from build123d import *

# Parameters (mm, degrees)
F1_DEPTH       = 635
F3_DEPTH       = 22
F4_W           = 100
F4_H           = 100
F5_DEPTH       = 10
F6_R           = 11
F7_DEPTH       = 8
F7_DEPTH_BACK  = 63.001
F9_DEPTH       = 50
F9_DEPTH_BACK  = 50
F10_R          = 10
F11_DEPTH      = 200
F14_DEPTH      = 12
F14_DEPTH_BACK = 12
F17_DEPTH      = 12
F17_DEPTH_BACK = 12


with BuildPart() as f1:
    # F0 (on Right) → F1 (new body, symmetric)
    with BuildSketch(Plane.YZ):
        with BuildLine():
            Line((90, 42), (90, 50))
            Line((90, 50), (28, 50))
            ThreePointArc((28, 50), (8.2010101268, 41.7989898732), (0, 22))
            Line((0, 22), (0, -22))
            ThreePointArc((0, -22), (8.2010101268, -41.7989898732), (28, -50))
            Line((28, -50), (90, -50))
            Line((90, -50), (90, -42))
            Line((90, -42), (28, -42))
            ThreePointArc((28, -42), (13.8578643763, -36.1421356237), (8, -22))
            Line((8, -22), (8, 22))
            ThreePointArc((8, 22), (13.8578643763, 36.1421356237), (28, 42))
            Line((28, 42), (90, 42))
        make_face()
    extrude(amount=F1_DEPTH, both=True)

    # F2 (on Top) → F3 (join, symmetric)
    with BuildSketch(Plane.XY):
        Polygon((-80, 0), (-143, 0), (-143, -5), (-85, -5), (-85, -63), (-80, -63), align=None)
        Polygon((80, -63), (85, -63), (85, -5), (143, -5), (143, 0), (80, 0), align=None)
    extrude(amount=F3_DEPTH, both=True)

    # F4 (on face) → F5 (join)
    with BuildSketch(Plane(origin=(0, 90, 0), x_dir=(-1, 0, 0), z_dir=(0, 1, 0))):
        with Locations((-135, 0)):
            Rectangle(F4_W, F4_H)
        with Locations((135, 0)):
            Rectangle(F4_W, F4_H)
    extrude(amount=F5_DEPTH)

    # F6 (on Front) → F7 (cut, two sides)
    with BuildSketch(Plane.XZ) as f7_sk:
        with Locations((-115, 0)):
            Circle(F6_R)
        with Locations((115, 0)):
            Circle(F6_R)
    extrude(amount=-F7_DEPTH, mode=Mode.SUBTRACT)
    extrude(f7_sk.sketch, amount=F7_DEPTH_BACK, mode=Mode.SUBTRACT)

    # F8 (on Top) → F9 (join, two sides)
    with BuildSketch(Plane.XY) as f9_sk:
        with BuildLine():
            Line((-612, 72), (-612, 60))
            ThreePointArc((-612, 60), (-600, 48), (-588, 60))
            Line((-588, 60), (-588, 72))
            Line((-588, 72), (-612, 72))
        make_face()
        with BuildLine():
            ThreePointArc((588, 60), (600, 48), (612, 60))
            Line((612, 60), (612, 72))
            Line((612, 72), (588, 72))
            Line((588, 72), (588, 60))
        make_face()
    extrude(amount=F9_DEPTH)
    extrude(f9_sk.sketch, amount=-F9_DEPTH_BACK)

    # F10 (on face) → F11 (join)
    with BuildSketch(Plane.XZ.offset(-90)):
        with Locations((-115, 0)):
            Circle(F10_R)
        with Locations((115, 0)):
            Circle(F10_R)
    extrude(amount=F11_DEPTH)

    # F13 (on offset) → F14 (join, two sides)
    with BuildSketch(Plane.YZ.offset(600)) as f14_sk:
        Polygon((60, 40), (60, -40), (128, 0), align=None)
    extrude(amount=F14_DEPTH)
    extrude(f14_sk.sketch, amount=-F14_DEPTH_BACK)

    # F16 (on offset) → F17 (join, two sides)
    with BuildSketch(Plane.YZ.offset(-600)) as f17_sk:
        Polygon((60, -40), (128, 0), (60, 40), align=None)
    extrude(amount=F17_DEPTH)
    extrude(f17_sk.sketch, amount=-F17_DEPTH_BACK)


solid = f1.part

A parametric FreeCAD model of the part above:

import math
import FreeCAD as App
import Part
import Sketcher
Q = App.Units.Quantity

doc = App.newDocument("Part")
params = doc.addObject("Spreadsheet::Sheet", "Params")
for row, (alias, value) in enumerate([
    ("sketch1_radius", "28 mm"),
    ("sketch1_radius2", "20 mm"),
    ("sketch1_width", "62 mm"),
    ("sketch1_height", "44 mm"),
    ("pad1_length", "1270 mm"),
    ("sketch2_width", "63 mm"),
    ("sketch2_width2", "58 mm"),
    ("pad2_length", "44 mm"),
    ("sketch3_width", "100 mm"),
    ("pad3_length", "10 mm"),
    ("sketch4_diameter", "22 mm"),
    ("pocket1_length", "8 mm"),
    ("pocket1_length2", "63.001 mm"),
    ("sketch5_radius", "12 mm"),
    ("sketch5_height", "12 mm"),
    ("pad4_length", "50 mm"),
    ("pad4_length2", "50 mm"),
    ("sketch6_diameter", "20 mm"),
    ("pad5_length", "200 mm"),
    ("sketch7_height", "80 mm"),
    ("pad6_length", "12 mm"),
    ("pad6_length2", "12 mm"),
    ("sketch8_height", "80 mm"),
    ("pad7_length", "12 mm"),
    ("pad7_length2", "12 mm"),
], start=1):
    params.set(f"A{row}", alias)
    params.set(f"B{row}", "=" + value)
    params.setAlias(f"B{row}", alias)

body = doc.addObject("PartDesign::Body", "Body")

# Sketch on YZ plane
sketch1 = body.newObject("Sketcher::SketchObject", "Sketch")
sketch1.AttachmentSupport = (doc.getObject("YZ_Plane"), [""])
sketch1.MapMode = "FlatFace"
sketch1.addGeometry([
    Part.LineSegment(App.Vector(90, 42, 0), App.Vector(90, 50, 0)),  # 0
    Part.LineSegment(App.Vector(90, 50, 0), App.Vector(28, 50, 0)),  # 1
    Part.ArcOfCircle(Part.Circle(App.Vector(28, 22, 0), App.Vector(0, 0, 1), 28), math.radians(90), math.radians(180)),  # 2
    Part.LineSegment(App.Vector(0, 22, 0), App.Vector(0, -22, 0)),  # 3
    Part.ArcOfCircle(Part.Circle(App.Vector(28, -22, 0), App.Vector(0, 0, 1), 28), math.radians(180), math.radians(270)),  # 4
    Part.LineSegment(App.Vector(28, -50, 0), App.Vector(90, -50, 0)),  # 5
    Part.LineSegment(App.Vector(90, -50, 0), App.Vector(90, -42, 0)),  # 6
    Part.LineSegment(App.Vector(90, -42, 0), App.Vector(28, -42, 0)),  # 7
    Part.ArcOfCircle(Part.Circle(App.Vector(28, -22, 0), App.Vector(0, 0, 1), 20), math.radians(180), math.radians(270)),  # 8
    Part.LineSegment(App.Vector(8, -22, 0), App.Vector(8, 22, 0)),  # 9
    Part.ArcOfCircle(Part.Circle(App.Vector(28, 22, 0), App.Vector(0, 0, 1), 20), math.radians(90), math.radians(180)),  # 10
    Part.LineSegment(App.Vector(28, 42, 0), App.Vector(90, 42, 0)),  # 11
], False)
sketch1.addConstraint([
    Sketcher.Constraint("Coincident", 0, 2, 1, 1),
    Sketcher.Constraint("Tangent", 1, 2, 2, 1),
    Sketcher.Constraint("Tangent", 2, 2, 3, 1),
    Sketcher.Constraint("Tangent", 3, 2, 4, 1),
    Sketcher.Constraint("Tangent", 4, 2, 5, 1),
    Sketcher.Constraint("Coincident", 5, 2, 6, 1),
    Sketcher.Constraint("Coincident", 6, 2, 7, 1),
    Sketcher.Constraint("Tangent", 7, 2, 8, 2),
    Sketcher.Constraint("Tangent", 8, 1, 9, 1),
    Sketcher.Constraint("Tangent", 9, 2, 10, 2),
    Sketcher.Constraint("Tangent", 10, 1, 11, 1),
    Sketcher.Constraint("Coincident", 11, 2, 0, 1),
    Sketcher.Constraint("Vertical", 0),
    Sketcher.Constraint("Horizontal", 1),
    Sketcher.Constraint("Vertical", 3),
    Sketcher.Constraint("Horizontal", 5),
    Sketcher.Constraint("Vertical", 6),
    Sketcher.Constraint("Horizontal", 7),
    Sketcher.Constraint("Vertical", 9),
    Sketcher.Constraint("Horizontal", 11),
    Sketcher.Constraint("Coincident", 8, 3, 4, 3),
    Sketcher.Constraint("Coincident", 10, 3, 2, 3),
    Sketcher.Constraint("Equal", 2, 4),
    Sketcher.Constraint("Symmetric", 2, 2, 3, 2, -1, 1),
    Sketcher.Constraint("Vertical", 0, 2, 5, 2),
    Sketcher.Constraint("Radius", 2, Q("28 mm")),
    Sketcher.Constraint("Radius", 8, Q("20 mm")),
    Sketcher.Constraint("DistanceX", 1, 2, 1, 1, Q("62 mm")),
    Sketcher.Constraint("DistanceY", 3, 2, 3, 1, Q("44 mm")),
])
sketch1.setExpression("Constraints[25]", "Params.sketch1_radius")
sketch1.setExpression("Constraints[26]", "Params.sketch1_radius2")
sketch1.setExpression("Constraints[27]", "Params.sketch1_width")
sketch1.setExpression("Constraints[28]", "Params.sketch1_height")
pad1 = body.newObject("PartDesign::Pad", "Pad")
pad1.Profile = sketch1
pad1.setExpression("Length", "Params.pad1_length")
pad1.Midplane = True

# Sketch on XY plane
sketch2 = body.newObject("Sketcher::SketchObject", "Sketch001")
sketch2.AttachmentSupport = (doc.getObject("XY_Plane"), [""])
sketch2.MapMode = "FlatFace"
sketch2.addGeometry([
    Part.LineSegment(App.Vector(-80, 0, 0), App.Vector(-143, 0, 0)),  # 0
    Part.LineSegment(App.Vector(-143, 0, 0), App.Vector(-143, -5, 0)),  # 1
    Part.LineSegment(App.Vector(-143, -5, 0), App.Vector(-85, -5, 0)),  # 2
    Part.LineSegment(App.Vector(-85, -5, 0), App.Vector(-85, -63, 0)),  # 3
    Part.LineSegment(App.Vector(-85, -63, 0), App.Vector(-80, -63, 0)),  # 4
    Part.LineSegment(App.Vector(-80, -63, 0), App.Vector(-80, 0, 0)),  # 5
    Part.LineSegment(App.Vector(80, -63, 0), App.Vector(85, -63, 0)),  # 6
    Part.LineSegment(App.Vector(85, -63, 0), App.Vector(85, -5, 0)),  # 7
    Part.LineSegment(App.Vector(85, -5, 0), App.Vector(143, -5, 0)),  # 8
    Part.LineSegment(App.Vector(143, -5, 0), App.Vector(143, 0, 0)),  # 9
    Part.LineSegment(App.Vector(143, 0, 0), App.Vector(80, 0, 0)),  # 10
    Part.LineSegment(App.Vector(80, 0, 0), App.Vector(80, -63, 0)),  # 11
], False)
sketch2.addConstraint([
    Sketcher.Constraint("Coincident", 0, 2, 1, 1),
    Sketcher.Constraint("Coincident", 1, 2, 2, 1),
    Sketcher.Constraint("Coincident", 2, 2, 3, 1),
    Sketcher.Constraint("Coincident", 3, 2, 4, 1),
    Sketcher.Constraint("Coincident", 4, 2, 5, 1),
    Sketcher.Constraint("Coincident", 5, 2, 0, 1),
    Sketcher.Constraint("Coincident", 6, 2, 7, 1),
    Sketcher.Constraint("Coincident", 7, 2, 8, 1),
    Sketcher.Constraint("Coincident", 8, 2, 9, 1),
    Sketcher.Constraint("Coincident", 9, 2, 10, 1),
    Sketcher.Constraint("Coincident", 10, 2, 11, 1),
    Sketcher.Constraint("Coincident", 11, 2, 6, 1),
    Sketcher.Constraint("Horizontal", 0),
    Sketcher.Constraint("Vertical", 1),
    Sketcher.Constraint("Horizontal", 2),
    Sketcher.Constraint("Vertical", 3),
    Sketcher.Constraint("Horizontal", 4),
    Sketcher.Constraint("Vertical", 5),
    Sketcher.Constraint("Horizontal", 6),
    Sketcher.Constraint("Vertical", 7),
    Sketcher.Constraint("Horizontal", 8),
    Sketcher.Constraint("Vertical", 9),
    Sketcher.Constraint("Horizontal", 10),
    Sketcher.Constraint("Vertical", 11),
    Sketcher.Constraint("Symmetric", 0, 2, 9, 2, -1, 1),
    Sketcher.Constraint("Symmetric", 3, 2, 6, 2, -2),
    Sketcher.Constraint("Symmetric", 5, 2, 10, 2, -2),
    Sketcher.Constraint("Horizontal", 2, 2, 7, 2),
    Sketcher.Constraint("Equal", 6, 1),
    Sketcher.Constraint("Equal", 8, 3),
    Sketcher.Constraint("DistanceX", 0, 2, 0, 1, Q("63 mm")),
    Sketcher.Constraint("DistanceX", 2, 1, 2, 2, Q("58 mm")),
    Sketcher.Constraint("DistanceX", 0, 2, -1, 1, Q("143 mm")),
])
sketch2.setExpression("Constraints[30]", "Params.sketch2_width")
sketch2.setExpression("Constraints[31]", "Params.sketch2_width2")
pad2 = body.newObject("PartDesign::Pad", "Pad001")
pad2.Profile = sketch2
pad2.setExpression("Length", "Params.pad2_length")
pad2.Midplane = True

# Sketch on XZ plane
sketch3 = body.newObject("Sketcher::SketchObject", "Sketch002")
sketch3.AttachmentSupport = (doc.getObject("XZ_Plane"), [""])
sketch3.MapMode = "FlatFace"
sketch3.AttachmentOffset = App.Placement(App.Vector(0, 0, -90), App.Rotation())
sketch3.addGeometry([
    Part.LineSegment(App.Vector(185, 50, 0), App.Vector(185, -50, 0)),  # 0
    Part.LineSegment(App.Vector(185, -50, 0), App.Vector(85, -50, 0)),  # 1
    Part.LineSegment(App.Vector(85, -50, 0), App.Vector(85, 50, 0)),  # 2
    Part.LineSegment(App.Vector(85, 50, 0), App.Vector(185, 50, 0)),  # 3
    Part.LineSegment(App.Vector(-85, 50, 0), App.Vector(-85, -50, 0)),  # 4
    Part.LineSegment(App.Vector(-85, -50, 0), App.Vector(-185, -50, 0)),  # 5
    Part.LineSegment(App.Vector(-185, -50, 0), App.Vector(-185, 50, 0)),  # 6
    Part.LineSegment(App.Vector(-185, 50, 0), App.Vector(-85, 50, 0)),  # 7
], False)
sketch3.addConstraint([
    Sketcher.Constraint("Coincident", 0, 2, 1, 1),
    Sketcher.Constraint("Coincident", 1, 2, 2, 1),
    Sketcher.Constraint("Coincident", 2, 2, 3, 1),
    Sketcher.Constraint("Coincident", 3, 2, 0, 1),
    Sketcher.Constraint("Coincident", 4, 2, 5, 1),
    Sketcher.Constraint("Coincident", 5, 2, 6, 1),
    Sketcher.Constraint("Coincident", 6, 2, 7, 1),
    Sketcher.Constraint("Coincident", 7, 2, 4, 1),
    Sketcher.Constraint("Vertical", 0),
    Sketcher.Constraint("Horizontal", 1),
    Sketcher.Constraint("Vertical", 2),
    Sketcher.Constraint("Horizontal", 3),
    Sketcher.Constraint("Vertical", 4),
    Sketcher.Constraint("Horizontal", 5),
    Sketcher.Constraint("Vertical", 6),
    Sketcher.Constraint("Horizontal", 7),
    Sketcher.Constraint("Symmetric", 2, 2, 4, 2, -1, 1),
    Sketcher.Constraint("Symmetric", 0, 2, 6, 2, -1, 1),
    Sketcher.Constraint("Horizontal", 1, 2, 4, 2),
    Sketcher.Constraint("Equal", 7, 0),
    Sketcher.Constraint("DistanceX", 1, 2, 1, 1, Q("100 mm")),
    Sketcher.Constraint("DistanceX", -1, 1, 0, 2, Q("185 mm")),
])
sketch3.setExpression("Constraints[20]", "Params.sketch3_width")
pad3 = body.newObject("PartDesign::Pad", "Pad002")
pad3.Profile = sketch3
pad3.setExpression("Length", "Params.pad3_length")
pad3.Reversed = True

# Sketch on XZ plane
sketch4 = body.newObject("Sketcher::SketchObject", "Sketch003")
sketch4.AttachmentSupport = (doc.getObject("XZ_Plane"), [""])
sketch4.MapMode = "FlatFace"
sketch4.addGeometry([
    Part.Circle(App.Vector(-115, 0, 0), App.Vector(0, 0, 1), 11),
    Part.Circle(App.Vector(115, 0, 0), App.Vector(0, 0, 1), 11),
], False)
sketch4.addConstraint([
    Sketcher.Constraint("Equal", 0, 1),
    Sketcher.Constraint("Symmetric", 0, 3, 1, 3, -1, 1),
    Sketcher.Constraint("PointOnObject", 0, 3, -1),
    Sketcher.Constraint("Diameter", 0, Q("22 mm")),
    Sketcher.Constraint("DistanceX", 0, 3, -1, 1, Q("115 mm")),
])
sketch4.setExpression("Constraints[3]", "Params.sketch4_diameter")
pocket1 = body.newObject("PartDesign::Pocket", "Pocket")
pocket1.Profile = sketch4
pocket1.Type = "TwoLengths"
pocket1.setExpression("Length", "Params.pocket1_length")
pocket1.setExpression("Length2", "Params.pocket1_length2")

# Sketch on XY plane
sketch5 = body.newObject("Sketcher::SketchObject", "Sketch004")
sketch5.AttachmentSupport = (doc.getObject("XY_Plane"), [""])
sketch5.MapMode = "FlatFace"
sketch5.addGeometry([
    Part.LineSegment(App.Vector(-612, 72, 0), App.Vector(-612, 60, 0)),  # 0
    Part.ArcOfCircle(Part.Circle(App.Vector(-600, 60, 0), App.Vector(0, 0, 1), 12), math.radians(180), math.radians(360)),  # 1
    Part.LineSegment(App.Vector(-588, 60, 0), App.Vector(-588, 72, 0)),  # 2
    Part.LineSegment(App.Vector(-588, 72, 0), App.Vector(-612, 72, 0)),  # 3
    Part.ArcOfCircle(Part.Circle(App.Vector(600, 60, 0), App.Vector(0, 0, 1), 12), math.radians(180), math.radians(360)),  # 4
    Part.LineSegment(App.Vector(612, 60, 0), App.Vector(612, 72, 0)),  # 5
    Part.LineSegment(App.Vector(612, 72, 0), App.Vector(588, 72, 0)),  # 6
    Part.LineSegment(App.Vector(588, 72, 0), App.Vector(588, 60, 0)),  # 7
], False)
sketch5.addConstraint([
    Sketcher.Constraint("Tangent", 0, 2, 1, 1),
    Sketcher.Constraint("Tangent", 1, 2, 2, 1),
    Sketcher.Constraint("Coincident", 2, 2, 3, 1),
    Sketcher.Constraint("Coincident", 3, 2, 0, 1),
    Sketcher.Constraint("Tangent", 4, 2, 5, 1),
    Sketcher.Constraint("Coincident", 5, 2, 6, 1),
    Sketcher.Constraint("Coincident", 6, 2, 7, 1),
    Sketcher.Constraint("Tangent", 7, 2, 4, 1),
    Sketcher.Constraint("Vertical", 0),
    Sketcher.Constraint("Vertical", 2),
    Sketcher.Constraint("Horizontal", 3),
    Sketcher.Constraint("Vertical", 5),
    Sketcher.Constraint("Horizontal", 6),
    Sketcher.Constraint("Vertical", 7),
    Sketcher.Constraint("Equal", 1, 4),
    Sketcher.Constraint("Symmetric", 1, 3, 4, 3, -2),
    Sketcher.Constraint("Horizontal", 3, 2, 5, 2),
    Sketcher.Constraint("Radius", 1, Q("12 mm")),
    Sketcher.Constraint("DistanceY", 0, 2, 0, 1, Q("12 mm")),
    Sketcher.Constraint("DistanceX", 1, 3, -1, 1, Q("600 mm")),
    Sketcher.Constraint("DistanceY", -1, 1, 1, 3, Q("60 mm")),
])
sketch5.setExpression("Constraints[17]", "Params.sketch5_radius")
sketch5.setExpression("Constraints[18]", "Params.sketch5_height")
pad4 = body.newObject("PartDesign::Pad", "Pad003")
pad4.Profile = sketch5
pad4.Type = "TwoLengths"
pad4.setExpression("Length", "Params.pad4_length")
pad4.setExpression("Length2", "Params.pad4_length2")

# Sketch on XZ plane
sketch6 = body.newObject("Sketcher::SketchObject", "Sketch005")
sketch6.AttachmentSupport = (doc.getObject("XZ_Plane"), [""])
sketch6.MapMode = "FlatFace"
sketch6.AttachmentOffset = App.Placement(App.Vector(0, 0, -90), App.Rotation())
sketch6.addGeometry([
    Part.Circle(App.Vector(-115, 0, 0), App.Vector(0, 0, 1), 10),
    Part.Circle(App.Vector(115, 0, 0), App.Vector(0, 0, 1), 10),
], False)
sketch6.addConstraint([
    Sketcher.Constraint("Equal", 0, 1),
    Sketcher.Constraint("Symmetric", 0, 3, 1, 3, -1, 1),
    Sketcher.Constraint("PointOnObject", 0, 3, -1),
    Sketcher.Constraint("Diameter", 0, Q("20 mm")),
    Sketcher.Constraint("DistanceX", 0, 3, -1, 1, Q("115 mm")),
])
sketch6.setExpression("Constraints[3]", "Params.sketch6_diameter")
pad5 = body.newObject("PartDesign::Pad", "Pad004")
pad5.Profile = sketch6
pad5.setExpression("Length", "Params.pad5_length")

# Sketch on YZ plane
sketch7 = body.newObject("Sketcher::SketchObject", "Sketch006")
sketch7.AttachmentSupport = (doc.getObject("YZ_Plane"), [""])
sketch7.MapMode = "FlatFace"
sketch7.AttachmentOffset = App.Placement(App.Vector(0, 0, 600), App.Rotation())
sketch7.addGeometry([
    Part.LineSegment(App.Vector(60, 40, 0), App.Vector(60, -40, 0)),
    Part.LineSegment(App.Vector(60, -40, 0), App.Vector(128, 0, 0)),
    Part.LineSegment(App.Vector(128, 0, 0), App.Vector(60, 40, 0)),
], False)
sketch7.addConstraint([
    Sketcher.Constraint("Coincident", 0, 2, 1, 1),
    Sketcher.Constraint("Coincident", 1, 2, 2, 1),
    Sketcher.Constraint("Coincident", 2, 2, 0, 1),
    Sketcher.Constraint("Vertical", 0),
    Sketcher.Constraint("PointOnObject", 1, 2, -1),
    Sketcher.Constraint("Equal", 1, 2),
    Sketcher.Constraint("DistanceY", 0, 2, 0, 1, Q("80 mm")),
    Sketcher.Constraint("DistanceX", -1, 1, 0, 2, Q("60 mm")),
    Sketcher.Constraint("DistanceX", -1, 1, 1, 2, Q("128 mm")),
])
sketch7.setExpression("Constraints[6]", "Params.sketch7_height")
pad6 = body.newObject("PartDesign::Pad", "Pad005")
pad6.Profile = sketch7
pad6.Type = "TwoLengths"
pad6.setExpression("Length", "Params.pad6_length")
pad6.setExpression("Length2", "Params.pad6_length2")

# Sketch on YZ plane
sketch8 = body.newObject("Sketcher::SketchObject", "Sketch007")
sketch8.AttachmentSupport = (doc.getObject("YZ_Plane"), [""])
sketch8.MapMode = "FlatFace"
sketch8.AttachmentOffset = App.Placement(App.Vector(0, 0, -600), App.Rotation())
sketch8.addGeometry([
    Part.LineSegment(App.Vector(60, -40, 0), App.Vector(128, 0, 0)),
    Part.LineSegment(App.Vector(128, 0, 0), App.Vector(60, 40, 0)),
    Part.LineSegment(App.Vector(60, 40, 0), App.Vector(60, -40, 0)),
], False)
sketch8.addConstraint([
    Sketcher.Constraint("Coincident", 0, 2, 1, 1),
    Sketcher.Constraint("Coincident", 1, 2, 2, 1),
    Sketcher.Constraint("Coincident", 2, 2, 0, 1),
    Sketcher.Constraint("Vertical", 2),
    Sketcher.Constraint("PointOnObject", 0, 2, -1),
    Sketcher.Constraint("Equal", 0, 1),
    Sketcher.Constraint("DistanceY", 2, 2, 2, 1, Q("80 mm")),
    Sketcher.Constraint("DistanceX", -1, 1, 0, 2, Q("128 mm")),
    Sketcher.Constraint("DistanceX", -1, 1, 1, 2, Q("60 mm")),
])
sketch8.setExpression("Constraints[6]", "Params.sketch8_height")
pad7 = body.newObject("PartDesign::Pad", "Pad006")
pad7.Profile = sketch8
pad7.Type = "TwoLengths"
pad7.setExpression("Length", "Params.pad7_length")
pad7.setExpression("Length2", "Params.pad7_length2")

doc.recompute()
